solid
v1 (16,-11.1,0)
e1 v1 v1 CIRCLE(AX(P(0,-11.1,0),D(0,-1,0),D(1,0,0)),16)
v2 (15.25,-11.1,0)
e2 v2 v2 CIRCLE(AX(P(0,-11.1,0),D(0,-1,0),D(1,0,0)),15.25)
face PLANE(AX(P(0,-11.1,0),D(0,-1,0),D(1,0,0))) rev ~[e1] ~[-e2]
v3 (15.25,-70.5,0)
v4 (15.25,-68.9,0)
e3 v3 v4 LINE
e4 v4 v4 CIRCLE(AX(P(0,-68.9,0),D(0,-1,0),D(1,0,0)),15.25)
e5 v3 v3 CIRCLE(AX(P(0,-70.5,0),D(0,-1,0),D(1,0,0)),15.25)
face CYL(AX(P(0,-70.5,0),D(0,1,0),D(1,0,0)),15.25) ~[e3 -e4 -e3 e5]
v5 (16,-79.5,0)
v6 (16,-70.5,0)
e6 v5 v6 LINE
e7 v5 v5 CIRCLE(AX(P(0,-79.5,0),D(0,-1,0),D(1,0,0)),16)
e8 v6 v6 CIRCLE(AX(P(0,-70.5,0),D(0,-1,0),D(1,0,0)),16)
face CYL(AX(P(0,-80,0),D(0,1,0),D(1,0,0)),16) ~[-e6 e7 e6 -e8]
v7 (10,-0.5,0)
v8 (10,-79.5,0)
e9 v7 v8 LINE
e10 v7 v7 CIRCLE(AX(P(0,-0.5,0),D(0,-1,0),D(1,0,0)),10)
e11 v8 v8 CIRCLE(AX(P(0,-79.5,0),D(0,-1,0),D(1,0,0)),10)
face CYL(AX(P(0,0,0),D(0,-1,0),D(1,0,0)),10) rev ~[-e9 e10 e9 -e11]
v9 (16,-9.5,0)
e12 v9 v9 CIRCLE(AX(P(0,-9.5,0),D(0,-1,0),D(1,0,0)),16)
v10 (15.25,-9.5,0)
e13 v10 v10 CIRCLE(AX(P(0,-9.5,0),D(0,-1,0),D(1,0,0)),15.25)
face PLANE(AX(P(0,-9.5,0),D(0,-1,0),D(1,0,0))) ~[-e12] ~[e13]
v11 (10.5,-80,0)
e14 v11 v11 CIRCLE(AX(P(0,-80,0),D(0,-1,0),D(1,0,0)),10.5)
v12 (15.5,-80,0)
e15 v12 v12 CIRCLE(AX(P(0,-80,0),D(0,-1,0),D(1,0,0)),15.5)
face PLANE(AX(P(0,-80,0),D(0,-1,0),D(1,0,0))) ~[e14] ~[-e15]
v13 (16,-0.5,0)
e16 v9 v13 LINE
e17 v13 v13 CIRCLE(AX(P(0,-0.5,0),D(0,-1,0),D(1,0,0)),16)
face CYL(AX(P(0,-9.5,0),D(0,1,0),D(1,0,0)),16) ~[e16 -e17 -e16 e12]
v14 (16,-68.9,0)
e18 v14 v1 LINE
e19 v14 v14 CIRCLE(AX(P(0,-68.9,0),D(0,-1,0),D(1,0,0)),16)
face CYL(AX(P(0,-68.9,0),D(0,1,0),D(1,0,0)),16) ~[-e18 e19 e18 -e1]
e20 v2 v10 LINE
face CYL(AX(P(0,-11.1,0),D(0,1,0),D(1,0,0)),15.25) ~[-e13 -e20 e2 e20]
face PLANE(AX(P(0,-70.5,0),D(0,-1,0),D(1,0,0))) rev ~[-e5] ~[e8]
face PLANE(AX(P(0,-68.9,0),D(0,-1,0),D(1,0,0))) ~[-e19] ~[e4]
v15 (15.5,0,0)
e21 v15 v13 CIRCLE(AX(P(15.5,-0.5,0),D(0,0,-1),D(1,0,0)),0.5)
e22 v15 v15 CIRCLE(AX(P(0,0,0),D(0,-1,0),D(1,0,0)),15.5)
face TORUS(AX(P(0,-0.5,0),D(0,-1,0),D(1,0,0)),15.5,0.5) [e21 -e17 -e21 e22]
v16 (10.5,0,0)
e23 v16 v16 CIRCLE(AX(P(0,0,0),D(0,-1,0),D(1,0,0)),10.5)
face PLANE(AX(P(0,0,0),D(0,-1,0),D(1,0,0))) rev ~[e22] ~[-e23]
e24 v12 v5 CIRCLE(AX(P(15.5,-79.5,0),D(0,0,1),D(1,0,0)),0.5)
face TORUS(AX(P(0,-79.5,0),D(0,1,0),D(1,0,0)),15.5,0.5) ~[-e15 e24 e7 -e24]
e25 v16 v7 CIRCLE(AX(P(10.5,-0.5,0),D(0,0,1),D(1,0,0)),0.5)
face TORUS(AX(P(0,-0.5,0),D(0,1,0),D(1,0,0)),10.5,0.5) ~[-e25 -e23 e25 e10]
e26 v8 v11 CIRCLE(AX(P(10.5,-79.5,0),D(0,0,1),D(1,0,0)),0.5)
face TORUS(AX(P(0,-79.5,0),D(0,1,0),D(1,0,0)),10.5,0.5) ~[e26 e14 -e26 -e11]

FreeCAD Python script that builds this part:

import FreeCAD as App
import Part
import Sketcher

V = App.Vector
Q = App.Units.Quantity


def edges_at(feature, points):
    """Names of the edges that pass closest to the given points."""
    edges = feature.Shape.Edges
    near = lambda p: min(range(len(edges)), key=lambda i: edges[i].distToShape(Part.Vertex(*p))[0])
    return sorted({f"Edge{near(p) + 1}" for p in points})

doc = App.newDocument("Part")
body = doc.addObject("PartDesign::Body", "Body")

# Sketch on XY plane
sketch1 = doc.addObject("Sketcher::SketchObject", "Sketch")
body.addObject(sketch1)
sketch1.AttachmentSupport = (doc.XY_Plane, [""])
sketch1.MapMode = "FlatFace"
sketch1.addGeometry([
    Part.LineSegment(V(16, 0, 0), V(10, 0, 0)),  # 0
    Part.LineSegment(V(10, 0, 0), V(10, -80, 0)),  # 1
    Part.LineSegment(V(10, -80, 0), V(16, -80, 0)),  # 2
    Part.LineSegment(V(16, -80, 0), V(16, -70.5, 0)),  # 3
    Part.LineSegment(V(16, -70.5, 0), V(15.25, -70.5, 0)),  # 4
    Part.LineSegment(V(15.25, -70.5, 0), V(15.25, -68.9, 0)),  # 5
    Part.LineSegment(V(15.25, -68.9, 0), V(16, -68.9, 0)),  # 6
    Part.LineSegment(V(16, -68.9, 0), V(16, -11.1, 0)),  # 7
    Part.LineSegment(V(16, -11.1, 0), V(15.25, -11.1, 0)),  # 8
    Part.LineSegment(V(15.25, -11.1, 0), V(15.25, -9.5, 0)),  # 9
    Part.LineSegment(V(15.25, -9.5, 0), V(16, -9.5, 0)),  # 10
    Part.LineSegment(V(16, -9.5, 0), V(16, 0, 0)),  # 11
], False)
sketch1.addConstraint([
    Sketcher.Constraint("Coincident", 0, 2, 1, 1),
    Sketcher.Constraint("Coincident", 1, 2, 2, 1),
    Sketcher.Constraint("Coincident", 2, 2, 3, 1),
    Sketcher.Constraint("Coincident", 3, 2, 4, 1),
    Sketcher.Constraint("Coincident", 4, 2, 5, 1),
    Sketcher.Constraint("Coincident", 5, 2, 6, 1),
    Sketcher.Constraint("Coincident", 6, 2, 7, 1),
    Sketcher.Constraint("Coincident", 7, 2, 8, 1),
    Sketcher.Constraint("Coincident", 8, 2, 9, 1),
    Sketcher.Constraint("Coincident", 9, 2, 10, 1),
    Sketcher.Constraint("Coincident", 10, 2, 11, 1),
    Sketcher.Constraint("Coincident", 11, 2, 0, 1),
    Sketcher.Constraint("Horizontal", 0),
    Sketcher.Constraint("Vertical", 1),
    Sketcher.Constraint("Horizontal", 2),
    Sketcher.Constraint("Vertical", 3),
    Sketcher.Constraint("Horizontal", 4),
    Sketcher.Constraint("Vertical", 5),
    Sketcher.Constraint("Horizontal", 6),
    Sketcher.Constraint("Vertical", 7),
    Sketcher.Constraint("Horizontal", 8),
    Sketcher.Constraint("Vertical", 9),
    Sketcher.Constraint("Horizontal", 10),
    Sketcher.Constraint("Vertical", 11),
    Sketcher.Constraint("PointOnObject", 0, 2, -1),
    Sketcher.Constraint("Vertical", 3, 2, 6, 2),
    Sketcher.Constraint("Vertical", 5, 2, 8, 2),
    Sketcher.Constraint("Vertical", 7, 2, 10, 2),
    Sketcher.Constraint("Equal", 5, 9),
    Sketcher.Constraint("Equal", 3, 11),
    Sketcher.Constraint("DistanceX", 0, 2, 0, 1, Q("6 mm")),
    Sketcher.Constraint("DistanceY", 1, 2, 1, 1, Q("80 mm")),
    Sketcher.Constraint("DistanceY", 3, 1, 3, 2, Q("9.5 mm")),
    Sketcher.Constraint("DistanceY", 5, 1, 5, 2, Q("1.6 mm")),
    Sketcher.Constraint("DistanceX", -1, 1, 0, 2, Q("10 mm")),
    Sketcher.Constraint("DistanceX", 4, 2, 4, 1, Q("0.75 mm")),
])
revolution = doc.addObject("PartDesign::Revolution", "Revolution")
body.addObject(revolution)
revolution.Profile = sketch1
revolution.ReferenceAxis = (sketch1, ["V_Axis"])
revolution.Angle = 360
doc.recompute()

fillet = doc.addObject("PartDesign::Fillet", "Fillet")
body.addObject(fillet)
fillet.Base = (revolution, edges_at(revolution, [
    (-10, -80, 0),
    (-16, -80, 0),
    (-16, 0, 0),
    (-10, 0, 0),
]))
fillet.Radius = 0.5

doc.recompute()
